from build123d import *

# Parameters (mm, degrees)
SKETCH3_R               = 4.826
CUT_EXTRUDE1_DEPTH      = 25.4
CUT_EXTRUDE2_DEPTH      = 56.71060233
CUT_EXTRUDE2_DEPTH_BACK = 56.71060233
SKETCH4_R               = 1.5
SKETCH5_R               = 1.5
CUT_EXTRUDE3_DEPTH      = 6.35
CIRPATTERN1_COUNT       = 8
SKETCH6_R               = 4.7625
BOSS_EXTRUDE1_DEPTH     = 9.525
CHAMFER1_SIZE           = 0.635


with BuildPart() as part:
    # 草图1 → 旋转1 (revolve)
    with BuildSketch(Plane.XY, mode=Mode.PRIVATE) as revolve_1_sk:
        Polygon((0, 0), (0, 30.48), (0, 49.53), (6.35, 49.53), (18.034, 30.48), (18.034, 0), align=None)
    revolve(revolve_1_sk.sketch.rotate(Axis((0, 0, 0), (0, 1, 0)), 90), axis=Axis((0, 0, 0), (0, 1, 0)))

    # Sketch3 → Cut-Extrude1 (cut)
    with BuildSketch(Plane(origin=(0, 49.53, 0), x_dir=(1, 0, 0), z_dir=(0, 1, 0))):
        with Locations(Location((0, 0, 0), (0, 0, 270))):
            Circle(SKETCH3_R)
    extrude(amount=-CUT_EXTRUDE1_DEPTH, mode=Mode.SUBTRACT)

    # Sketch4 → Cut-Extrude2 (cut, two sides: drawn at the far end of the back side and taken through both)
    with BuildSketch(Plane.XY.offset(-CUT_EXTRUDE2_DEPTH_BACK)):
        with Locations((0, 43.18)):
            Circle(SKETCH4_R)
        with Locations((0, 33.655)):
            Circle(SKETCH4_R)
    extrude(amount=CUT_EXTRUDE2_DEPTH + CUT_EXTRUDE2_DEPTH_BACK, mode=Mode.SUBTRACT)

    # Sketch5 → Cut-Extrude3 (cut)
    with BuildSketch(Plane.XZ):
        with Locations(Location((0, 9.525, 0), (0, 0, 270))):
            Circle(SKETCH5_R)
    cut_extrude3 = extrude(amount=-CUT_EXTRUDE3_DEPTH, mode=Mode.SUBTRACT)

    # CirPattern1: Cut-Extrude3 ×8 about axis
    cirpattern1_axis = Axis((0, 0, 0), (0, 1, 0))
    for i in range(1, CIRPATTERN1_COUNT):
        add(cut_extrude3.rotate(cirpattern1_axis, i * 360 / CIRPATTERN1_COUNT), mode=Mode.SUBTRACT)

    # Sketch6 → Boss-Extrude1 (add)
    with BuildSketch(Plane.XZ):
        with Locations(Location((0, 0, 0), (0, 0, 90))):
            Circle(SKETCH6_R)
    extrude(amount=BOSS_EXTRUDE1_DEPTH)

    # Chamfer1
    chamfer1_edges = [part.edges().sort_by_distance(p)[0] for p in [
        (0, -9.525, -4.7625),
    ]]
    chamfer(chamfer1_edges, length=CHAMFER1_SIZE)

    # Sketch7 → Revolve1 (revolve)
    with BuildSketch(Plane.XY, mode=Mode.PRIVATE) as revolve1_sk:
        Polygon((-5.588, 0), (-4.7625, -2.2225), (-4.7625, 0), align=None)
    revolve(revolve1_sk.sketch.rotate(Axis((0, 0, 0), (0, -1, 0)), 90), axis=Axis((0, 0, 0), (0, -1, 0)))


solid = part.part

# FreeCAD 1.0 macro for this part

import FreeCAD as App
import Part
import Sketcher

V = App.Vector
Q = App.Units.Quantity


def edges_at(feature, points):
    """Names of the edges that pass closest to the given points."""
    edges = feature.Shape.Edges
    near = lambda p: min(range(len(edges)), key=lambda i: edges[i].distToShape(Part.Vertex(*p))[0])
    return sorted({f"Edge{near(p) + 1}" for p in points})

doc = App.newDocument("Part")
body = doc.addObject("PartDesign::Body", "Body")

# Sketch on XY plane
sketch1 = doc.addObject("Sketcher::SketchObject", "Sketch")
body.addObject(sketch1)
sketch1.AttachmentSupport = (doc.XY_Plane, [""])
sketch1.MapMode = "FlatFace"
sketch1.addGeometry(Part.LineSegment(V(0, 49.53, 0), V(0, 0, 0)), False)
sketch1.addGeometry(Part.LineSegment(V(0, 0, 0), V(18.034, 0, 0)), False)
sketch1.addGeometry(Part.LineSegment(V(18.034, 0, 0), V(18.034, 30.48, 0)), False)
sketch1.addGeometry(Part.LineSegment(V(18.034, 30.48, 0), V(6.35, 49.53, 0)), False)
sketch1.addGeometry(Part.LineSegment(V(6.35, 49.53, 0), V(0, 49.53, 0)), False)
sketch1.addConstraint(Sketcher.Constraint("Coincident", 0, 2, 1, 1))
sketch1.addConstraint(Sketcher.Constraint("Coincident", 1, 2, 2, 1))
sketch1.addConstraint(Sketcher.Constraint("Coincident", 2, 2, 3, 1))
sketch1.addConstraint(Sketcher.Constraint("Coincident", 3, 2, 4, 1))
sketch1.addConstraint(Sketcher.Constraint("Coincident", 4, 2, 0, 1))
sketch1.addConstraint(Sketcher.Constraint("Vertical", 0))
sketch1.addConstraint(Sketcher.Constraint("Horizontal", 1))
sketch1.addConstraint(Sketcher.Constraint("Vertical", 2))
sketch1.addConstraint(Sketcher.Constraint("Horizontal", 4))
sketch1.addConstraint(Sketcher.Constraint("Coincident", 0, 2, -1, 1))
sketch1.addConstraint(Sketcher.Constraint("DistanceY", 2, 1, 2, 2, Q("1.2 in")))
sketch1.addConstraint(Sketcher.Constraint("DistanceX", 1, 1, 1, 2, Q("0.71 in")))
sketch1.addConstraint(Sketcher.Constraint("DistanceX", 4, 2, 4, 1, Q("0.25 in")))
sketch1.addConstraint(Sketcher.Constraint("DistanceY", 0, 2, 0, 1, Q("1.95 in")))
revolution = doc.addObject("PartDesign::Revolution", "Revolution")
body.addObject(revolution)
revolution.Profile = sketch1
revolution.ReferenceAxis = (sketch1, ["V_Axis"])
revolution.Angle = 360

# Sketch on XZ plane
sketch2 = doc.addObject("Sketcher::SketchObject", "Sketch001")
body.addObject(sketch2)
sketch2.AttachmentSupport = (doc.XZ_Plane, [""])
sketch2.MapMode = "FlatFace"
sketch2.AttachmentOffset = App.Placement(V(0, 0, -1.95 * 25.4), App.Rotation())
sketch2.addGeometry(Part.Circle(V(0, 0, 0), V(0, 0, 1), 4.826), False)
sketch2.addConstraint(Sketcher.Constraint("Coincident", 0, 3, -1, 1))
sketch2.addConstraint(Sketcher.Constraint("Diameter", 0, Q("0.38 in")))
pocket1 = doc.addObject("PartDesign::Pocket", "Pocket")
body.addObject(pocket1)
pocket1.Profile = sketch2
pocket1.Length = Q("1 in")
pocket1.Reversed = True

# Sketch on XY plane
sketch3 = doc.addObject("Sketcher::SketchObject", "Sketch002")
body.addObject(sketch3)
sketch3.AttachmentSupport = (doc.XY_Plane, [""])
sketch3.MapMode = "FlatFace"
sketch3.addGeometry(Part.Circle(V(0, 43.18, 0), V(0, 0, 1), 1.5), False)
sketch3.addGeometry(Part.Circle(V(0, 33.655, 0), V(0, 0, 1), 1.5), False)
sketch3.addConstraint(Sketcher.Constraint("Equal", 0, 1))
sketch3.addConstraint(Sketcher.Constraint("PointOnObject", 0, 3, -2))
sketch3.addConstraint(Sketcher.Constraint("PointOnObject", 1, 3, -2))
sketch3.addConstraint(Sketcher.Constraint("DistanceY", -1, 1, 0, 3, Q("1.7 in")))
sketch3.addConstraint(Sketcher.Constraint("Diameter", 0, 3.0))
sketch3.addConstraint(Sketcher.Constraint("DistanceY", -1, 1, 1, 3, Q("1.325 in")))
pocket2 = doc.addObject("PartDesign::Pocket", "Pocket001")
body.addObject(pocket2)
pocket2.Profile = sketch3
pocket2.Type = "ThroughAll"
pocket2.Midplane = True

# Sketch on XZ plane
sketch4 = doc.addObject("Sketcher::SketchObject", "Sketch003")
body.addObject(sketch4)
sketch4.AttachmentSupport = (doc.XZ_Plane, [""])
sketch4.MapMode = "FlatFace"
sketch4.addGeometry(Part.Circle(V(0, 9.525, 0), V(0, 0, 1), 1.5), False)
sketch4.addConstraint(Sketcher.Constraint("PointOnObject", 0, 3, -2))
sketch4.addConstraint(Sketcher.Constraint("Diameter", 0, 3.0))
sketch4.addConstraint(Sketcher.Constraint("DistanceY", -1, 1, 0, 3, Q("0.375 in")))
pocket3 = doc.addObject("PartDesign::Pocket", "Pocket002")
body.addObject(pocket3)
pocket3.Profile = sketch4
pocket3.Length = Q("0.25 in")
doc.recompute()

polarpattern = doc.addObject("PartDesign::PolarPattern", "PolarPattern")
body.addObject(polarpattern)
polarpattern.Originals = [pocket3]
polarpattern.Axis = (doc.Y_Axis, [""])
polarpattern.Angle = 360
polarpattern.Occurrences = 8
body.Tip = polarpattern

# Sketch on XZ plane
sketch5 = doc.addObject("Sketcher::SketchObject", "Sketch004")
body.addObject(sketch5)
sketch5.AttachmentSupport = (doc.XZ_Plane, [""])
sketch5.MapMode = "FlatFace"
sketch5.addGeometry(Part.Circle(V(0, 0, 0), V(0, 0, 1), 4.7625), False)
sketch5.addConstraint(Sketcher.Constraint("Coincident", 0, 3, -1, 1))
sketch5.addConstraint(Sketcher.Constraint("Diameter", 0, Q("0.375 in")))
pad1 = doc.addObject("PartDesign::Pad", "Pad")
body.addObject(pad1)
pad1.Profile = sketch5
pad1.Length = Q("0.375 in")
doc.recompute()

chamfer = doc.addObject("PartDesign::Chamfer", "Chamfer")
body.addObject(chamfer)
chamfer.Base = (pad1, edges_at(pad1, [(0, -9.525, -4.763)]))
chamfer.Size = Q("0.025 in")

# Sketch on XY plane
sketch6 = doc.addObject("Sketcher::SketchObject", "Sketch005")
body.addObject(sketch6)
sketch6.AttachmentSupport = (doc.XY_Plane, [""])
sketch6.MapMode = "FlatFace"
sketch6.addGeometry(Part.LineSegment(V(-5.588, 0, 0), V(-4.7625, -2.2225, 0)), False)
sketch6.addGeometry(Part.LineSegment(V(-4.7625, -2.2225, 0), V(-4.7625, 0, 0)), False)
sketch6.addGeometry(Part.LineSegment(V(-4.7625, 0, 0), V(-5.588, 0, 0)), False)
sketch6.addConstraint(Sketcher.Constraint("Coincident", 0, 2, 1, 1))
sketch6.addConstraint(Sketcher.Constraint("Coincident", 1, 2, 2, 1))
sketch6.addConstraint(Sketcher.Constraint("Coincident", 2, 2, 0, 1))
sketch6.addConstraint(Sketcher.Constraint("Vertical", 1))
sketch6.addConstraint(Sketcher.Constraint("Horizontal", 2))
sketch6.addConstraint(Sketcher.Constraint("PointOnObject", 1, 2, -1))
sketch6.addConstraint(Sketcher.Constraint("DistanceX", 2, 2, -1, 1, Q("0.22 in")))
sketch6.addConstraint(Sketcher.Constraint("DistanceX", 2, 2, 2, 1, Q("0.0325 in")))
sketch6.addConstraint(Sketcher.Constraint("DistanceY", 1, 1, 1, 2, Q("0.0875 in")))
revolution2 = doc.addObject("PartDesign::Revolution", "Revolution001")
body.addObject(revolution2)
revolution2.Profile = sketch6
revolution2.ReferenceAxis = (sketch6, ["V_Axis"])
revolution2.Angle = 360

doc.recompute()
